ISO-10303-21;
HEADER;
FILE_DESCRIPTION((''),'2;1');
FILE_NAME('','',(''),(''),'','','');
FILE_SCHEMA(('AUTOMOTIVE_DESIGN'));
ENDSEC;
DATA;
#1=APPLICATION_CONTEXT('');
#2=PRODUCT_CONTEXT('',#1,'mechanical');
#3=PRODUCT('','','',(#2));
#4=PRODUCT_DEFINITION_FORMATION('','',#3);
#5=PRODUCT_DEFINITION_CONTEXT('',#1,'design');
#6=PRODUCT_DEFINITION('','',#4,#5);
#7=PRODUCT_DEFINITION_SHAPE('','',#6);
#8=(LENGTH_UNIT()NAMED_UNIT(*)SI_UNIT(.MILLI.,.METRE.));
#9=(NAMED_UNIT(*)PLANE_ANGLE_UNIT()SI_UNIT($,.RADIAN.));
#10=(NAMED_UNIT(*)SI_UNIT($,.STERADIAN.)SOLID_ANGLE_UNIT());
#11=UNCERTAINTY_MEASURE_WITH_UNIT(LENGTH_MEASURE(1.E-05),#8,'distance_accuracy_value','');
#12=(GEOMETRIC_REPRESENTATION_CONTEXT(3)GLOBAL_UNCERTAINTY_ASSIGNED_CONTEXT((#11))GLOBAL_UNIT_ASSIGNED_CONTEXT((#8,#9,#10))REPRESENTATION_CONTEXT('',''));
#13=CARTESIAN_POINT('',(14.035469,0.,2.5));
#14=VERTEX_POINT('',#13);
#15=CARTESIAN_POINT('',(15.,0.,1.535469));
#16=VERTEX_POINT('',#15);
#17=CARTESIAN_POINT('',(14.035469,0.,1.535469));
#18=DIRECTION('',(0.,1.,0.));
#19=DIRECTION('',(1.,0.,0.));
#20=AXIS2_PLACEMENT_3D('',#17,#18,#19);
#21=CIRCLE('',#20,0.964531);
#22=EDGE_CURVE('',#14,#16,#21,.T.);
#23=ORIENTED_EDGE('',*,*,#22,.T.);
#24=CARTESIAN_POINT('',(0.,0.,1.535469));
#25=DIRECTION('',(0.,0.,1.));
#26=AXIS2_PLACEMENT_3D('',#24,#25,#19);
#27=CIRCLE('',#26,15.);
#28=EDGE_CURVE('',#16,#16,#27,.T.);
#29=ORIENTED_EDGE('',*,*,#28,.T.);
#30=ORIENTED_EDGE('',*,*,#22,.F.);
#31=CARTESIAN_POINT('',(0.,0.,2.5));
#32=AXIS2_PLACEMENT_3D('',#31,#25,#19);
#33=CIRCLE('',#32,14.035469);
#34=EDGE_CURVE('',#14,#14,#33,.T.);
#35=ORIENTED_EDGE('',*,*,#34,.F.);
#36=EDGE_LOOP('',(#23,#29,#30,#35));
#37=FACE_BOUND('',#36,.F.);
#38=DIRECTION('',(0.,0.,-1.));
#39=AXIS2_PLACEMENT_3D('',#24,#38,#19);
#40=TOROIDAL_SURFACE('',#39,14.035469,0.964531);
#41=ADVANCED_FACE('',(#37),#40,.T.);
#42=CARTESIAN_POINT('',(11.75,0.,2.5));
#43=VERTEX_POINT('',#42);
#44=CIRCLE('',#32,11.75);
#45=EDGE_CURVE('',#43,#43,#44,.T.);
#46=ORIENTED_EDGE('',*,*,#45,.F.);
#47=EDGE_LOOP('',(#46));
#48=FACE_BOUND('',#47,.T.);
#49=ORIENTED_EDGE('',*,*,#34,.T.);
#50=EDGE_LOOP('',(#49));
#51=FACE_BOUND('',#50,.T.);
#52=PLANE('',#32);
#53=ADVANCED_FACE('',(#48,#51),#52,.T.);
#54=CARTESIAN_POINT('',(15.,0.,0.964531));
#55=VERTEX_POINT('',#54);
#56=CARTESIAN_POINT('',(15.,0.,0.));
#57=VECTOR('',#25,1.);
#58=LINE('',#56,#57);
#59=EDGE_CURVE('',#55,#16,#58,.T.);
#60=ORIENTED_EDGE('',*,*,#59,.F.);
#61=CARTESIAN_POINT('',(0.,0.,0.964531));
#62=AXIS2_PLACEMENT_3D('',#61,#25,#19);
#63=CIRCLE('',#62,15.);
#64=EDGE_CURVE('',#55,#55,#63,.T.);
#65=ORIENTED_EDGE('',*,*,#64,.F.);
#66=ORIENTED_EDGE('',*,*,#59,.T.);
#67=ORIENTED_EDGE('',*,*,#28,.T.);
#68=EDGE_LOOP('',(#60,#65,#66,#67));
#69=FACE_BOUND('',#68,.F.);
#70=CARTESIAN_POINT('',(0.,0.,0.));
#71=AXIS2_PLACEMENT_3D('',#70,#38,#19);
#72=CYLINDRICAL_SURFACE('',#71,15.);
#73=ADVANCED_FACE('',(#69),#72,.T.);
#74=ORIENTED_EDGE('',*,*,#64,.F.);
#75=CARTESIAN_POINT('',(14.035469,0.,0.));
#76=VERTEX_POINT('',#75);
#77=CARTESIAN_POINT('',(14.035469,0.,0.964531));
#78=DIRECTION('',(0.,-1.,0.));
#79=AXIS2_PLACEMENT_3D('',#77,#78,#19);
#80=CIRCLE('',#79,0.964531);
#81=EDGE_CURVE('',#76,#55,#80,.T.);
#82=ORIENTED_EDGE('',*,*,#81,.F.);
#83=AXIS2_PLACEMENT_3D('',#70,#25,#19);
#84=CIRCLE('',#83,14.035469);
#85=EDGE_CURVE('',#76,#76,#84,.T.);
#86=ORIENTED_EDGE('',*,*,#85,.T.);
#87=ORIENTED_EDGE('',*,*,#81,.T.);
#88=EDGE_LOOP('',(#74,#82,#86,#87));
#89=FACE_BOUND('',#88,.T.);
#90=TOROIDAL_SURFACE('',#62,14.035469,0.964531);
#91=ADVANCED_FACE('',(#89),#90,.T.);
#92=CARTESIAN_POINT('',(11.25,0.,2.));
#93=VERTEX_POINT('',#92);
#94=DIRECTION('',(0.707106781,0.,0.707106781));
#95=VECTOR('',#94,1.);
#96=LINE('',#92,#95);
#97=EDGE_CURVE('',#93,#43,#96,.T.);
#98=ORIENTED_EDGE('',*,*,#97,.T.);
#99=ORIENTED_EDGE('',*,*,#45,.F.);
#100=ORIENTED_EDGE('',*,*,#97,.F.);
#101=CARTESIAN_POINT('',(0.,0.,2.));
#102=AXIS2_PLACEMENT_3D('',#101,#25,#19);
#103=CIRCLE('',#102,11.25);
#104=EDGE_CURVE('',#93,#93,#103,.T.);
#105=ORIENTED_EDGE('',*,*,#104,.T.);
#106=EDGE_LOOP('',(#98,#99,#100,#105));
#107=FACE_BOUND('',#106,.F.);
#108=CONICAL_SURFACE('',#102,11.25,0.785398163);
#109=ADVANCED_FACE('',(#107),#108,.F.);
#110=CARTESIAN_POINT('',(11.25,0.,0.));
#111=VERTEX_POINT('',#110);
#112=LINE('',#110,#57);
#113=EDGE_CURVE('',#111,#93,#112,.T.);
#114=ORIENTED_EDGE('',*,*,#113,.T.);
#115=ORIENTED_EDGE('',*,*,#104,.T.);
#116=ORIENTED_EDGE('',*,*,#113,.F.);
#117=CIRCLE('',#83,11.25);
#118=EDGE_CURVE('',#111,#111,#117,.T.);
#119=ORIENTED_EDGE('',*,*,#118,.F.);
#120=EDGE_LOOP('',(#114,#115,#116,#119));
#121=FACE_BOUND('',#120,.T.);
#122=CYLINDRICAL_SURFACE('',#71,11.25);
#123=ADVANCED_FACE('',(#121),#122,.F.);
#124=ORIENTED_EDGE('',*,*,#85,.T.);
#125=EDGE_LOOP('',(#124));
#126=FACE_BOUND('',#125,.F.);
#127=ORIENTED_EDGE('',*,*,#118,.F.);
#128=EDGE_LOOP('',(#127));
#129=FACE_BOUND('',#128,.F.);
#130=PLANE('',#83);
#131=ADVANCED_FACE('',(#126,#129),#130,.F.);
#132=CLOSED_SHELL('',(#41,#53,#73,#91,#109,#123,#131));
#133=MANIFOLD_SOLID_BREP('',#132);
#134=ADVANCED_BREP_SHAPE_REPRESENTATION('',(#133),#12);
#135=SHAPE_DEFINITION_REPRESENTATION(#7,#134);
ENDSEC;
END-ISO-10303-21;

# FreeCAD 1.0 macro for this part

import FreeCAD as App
import Part
import Sketcher

V = App.Vector
Q = App.Units.Quantity


def edges_at(feature, points):
    """Names of the edges that pass closest to the given points."""
    edges = feature.Shape.Edges
    near = lambda p: min(range(len(edges)), key=lambda i: edges[i].distToShape(Part.Vertex(*p))[0])
    return sorted({f"Edge{near(p) + 1}" for p in points})

doc = App.newDocument("Part")
body = doc.addObject("PartDesign::Body", "Body")

# Sketch on XY plane
sketch1 = body.newObject("Sketcher::SketchObject", "Sketch")
sketch1.AttachmentSupport = (doc.getObject("XY_Plane"), [""])
sketch1.MapMode = "FlatFace"
sketch1.addGeometry(Part.Circle(V(0, 0, 0), V(0, 0, 1), 15), False)
sketch1.addGeometry(Part.Circle(V(0, 0, 0), V(0, 0, 1), 11), False)
sketch1.addConstraint(Sketcher.Constraint("Coincident", 0, 3, -1, 1))
sketch1.addConstraint(Sketcher.Constraint("Coincident", 1, 3, -1, 1))
sketch1.addConstraint(Sketcher.Constraint("Diameter", 0, Q("30 mm")))
sketch1.addConstraint(Sketcher.Constraint("Diameter", 1, Q("22.5 mm")))
pad1 = body.newObject("PartDesign::Pad", "Pad")
pad1.Profile = sketch1
pad1.Length = 2.5
doc.recompute()

chamfer = body.newObject("PartDesign::Chamfer", "Chamfer")
chamfer.Base = (pad1, edges_at(pad1, [(-11.25, 0, 2.5)]))
chamfer.Size = 0.5
doc.recompute()

fillet = body.newObject("PartDesign::Fillet", "Fillet")
fillet.Base = (chamfer, edges_at(chamfer, [(-15, 0, 2.5), (-15, 0, 0)]))
fillet.Radius = 0.964531

doc.recompute()
